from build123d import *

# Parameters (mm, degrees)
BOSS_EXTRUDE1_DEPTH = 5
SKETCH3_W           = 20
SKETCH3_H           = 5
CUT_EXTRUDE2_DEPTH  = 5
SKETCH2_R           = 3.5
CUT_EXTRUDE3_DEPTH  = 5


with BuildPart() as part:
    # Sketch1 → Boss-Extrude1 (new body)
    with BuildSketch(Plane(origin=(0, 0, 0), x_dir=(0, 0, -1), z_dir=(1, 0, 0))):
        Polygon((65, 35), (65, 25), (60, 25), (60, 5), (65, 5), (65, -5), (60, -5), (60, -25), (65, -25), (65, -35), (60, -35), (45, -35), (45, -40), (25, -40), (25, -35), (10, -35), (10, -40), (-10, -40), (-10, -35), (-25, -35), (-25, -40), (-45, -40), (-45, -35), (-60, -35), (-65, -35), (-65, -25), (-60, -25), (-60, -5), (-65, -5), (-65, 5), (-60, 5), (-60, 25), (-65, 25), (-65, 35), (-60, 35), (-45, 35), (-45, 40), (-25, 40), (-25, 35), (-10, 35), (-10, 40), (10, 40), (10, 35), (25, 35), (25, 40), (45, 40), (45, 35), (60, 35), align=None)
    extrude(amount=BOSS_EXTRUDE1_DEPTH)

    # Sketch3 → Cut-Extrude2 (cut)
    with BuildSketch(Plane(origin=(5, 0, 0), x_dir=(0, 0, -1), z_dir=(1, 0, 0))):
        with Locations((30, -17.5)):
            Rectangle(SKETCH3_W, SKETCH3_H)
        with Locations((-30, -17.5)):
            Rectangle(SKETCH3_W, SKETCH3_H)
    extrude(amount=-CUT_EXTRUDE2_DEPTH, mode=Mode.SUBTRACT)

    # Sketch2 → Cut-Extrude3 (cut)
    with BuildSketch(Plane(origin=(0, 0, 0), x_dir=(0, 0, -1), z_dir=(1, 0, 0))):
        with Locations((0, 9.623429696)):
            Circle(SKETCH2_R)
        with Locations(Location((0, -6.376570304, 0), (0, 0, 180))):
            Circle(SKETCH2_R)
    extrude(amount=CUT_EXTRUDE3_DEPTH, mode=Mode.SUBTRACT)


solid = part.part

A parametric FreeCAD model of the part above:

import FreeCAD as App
import Part
import Sketcher
from FreeCAD import Vector
Q = App.Units.Quantity

doc = App.newDocument("Part")
body = doc.addObject("PartDesign::Body", "Body")

# Sketch on YZ plane
sketch1 = body.newObject("Sketcher::SketchObject", "Sketch")
sketch1.AttachmentSupport = (doc.getObject("YZ_Plane"), [""])
sketch1.MapMode = "FlatFace"
sketch1.addGeometry([
    Part.LineSegment(Vector(25, -65, 0), Vector(35, -65, 0)),  # 0
    Part.LineSegment(Vector(35, -65, 0), Vector(35, -45, 0)),  # 1
    Part.LineSegment(Vector(35, -45, 0), Vector(40, -45, 0)),  # 2
    Part.LineSegment(Vector(40, -45, 0), Vector(40, -25, 0)),  # 3
    Part.LineSegment(Vector(40, -25, 0), Vector(35, -25, 0)),  # 4
    Part.LineSegment(Vector(35, -25, 0), Vector(35, -10, 0)),  # 5
    Part.LineSegment(Vector(35, -10, 0), Vector(40, -10, 0)),  # 6
    Part.LineSegment(Vector(40, -10, 0), Vector(40, 10, 0)),  # 7
    Part.LineSegment(Vector(40, 10, 0), Vector(35, 10, 0)),  # 8
    Part.LineSegment(Vector(35, 10, 0), Vector(35, 25, 0)),  # 9
    Part.LineSegment(Vector(35, 25, 0), Vector(40, 25, 0)),  # 10
    Part.LineSegment(Vector(40, 25, 0), Vector(40, 45, 0)),  # 11
    Part.LineSegment(Vector(40, 45, 0), Vector(35, 45, 0)),  # 12
    Part.LineSegment(Vector(35, 45, 0), Vector(35, 65, 0)),  # 13
    Part.LineSegment(Vector(35, 65, 0), Vector(25, 65, 0)),  # 14
    Part.LineSegment(Vector(25, 65, 0), Vector(25, 60, 0)),  # 15
    Part.LineSegment(Vector(25, 60, 0), Vector(5, 60, 0)),  # 16
    Part.LineSegment(Vector(5, 60, 0), Vector(5, 65, 0)),  # 17
    Part.LineSegment(Vector(5, 65, 0), Vector(-5, 65, 0)),  # 18
    Part.LineSegment(Vector(-5, 65, 0), Vector(-5, 60, 0)),  # 19
    Part.LineSegment(Vector(-5, 60, 0), Vector(-25, 60, 0)),  # 20
    Part.LineSegment(Vector(-25, 60, 0), Vector(-25, 65, 0)),  # 21
    Part.LineSegment(Vector(-25, 65, 0), Vector(-35, 65, 0)),  # 22
    Part.LineSegment(Vector(-35, 65, 0), Vector(-35, 45, 0)),  # 23
    Part.LineSegment(Vector(-35, 45, 0), Vector(-40, 45, 0)),  # 24
    Part.LineSegment(Vector(-40, 45, 0), Vector(-40, 25, 0)),  # 25
    Part.LineSegment(Vector(-40, 25, 0), Vector(-35, 25, 0)),  # 26
    Part.LineSegment(Vector(-35, 25, 0), Vector(-35, 10, 0)),  # 27
    Part.LineSegment(Vector(-35, 10, 0), Vector(-40, 10, 0)),  # 28
    Part.LineSegment(Vector(-40, 10, 0), Vector(-40, -10, 0)),  # 29
    Part.LineSegment(Vector(-40, -10, 0), Vector(-35, -10, 0)),  # 30
    Part.LineSegment(Vector(-35, -10, 0), Vector(-35, -25, 0)),  # 31
    Part.LineSegment(Vector(-35, -25, 0), Vector(-40, -25, 0)),  # 32
    Part.LineSegment(Vector(-40, -25, 0), Vector(-40, -45, 0)),  # 33
    Part.LineSegment(Vector(-40, -45, 0), Vector(-35, -45, 0)),  # 34
    Part.LineSegment(Vector(-35, -45, 0), Vector(-35, -65, 0)),  # 35
    Part.LineSegment(Vector(-35, -65, 0), Vector(-25, -65, 0)),  # 36
    Part.LineSegment(Vector(-25, -65, 0), Vector(-25, -60, 0)),  # 37
    Part.LineSegment(Vector(-25, -60, 0), Vector(-5, -60, 0)),  # 38
    Part.LineSegment(Vector(-5, -60, 0), Vector(-5, -65, 0)),  # 39
    Part.LineSegment(Vector(-5, -65, 0), Vector(5, -65, 0)),  # 40
    Part.LineSegment(Vector(5, -65, 0), Vector(5, -60, 0)),  # 41
    Part.LineSegment(Vector(5, -60, 0), Vector(25, -60, 0)),  # 42
    Part.LineSegment(Vector(25, -60, 0), Vector(25, -65, 0)),  # 43
], False)
sketch1.addConstraint([
    Sketcher.Constraint("Coincident", 0, 2, 1, 1),
    Sketcher.Constraint("Coincident", 1, 2, 2, 1),
    Sketcher.Constraint("Coincident", 2, 2, 3, 1),
    Sketcher.Constraint("Coincident", 3, 2, 4, 1),
    Sketcher.Constraint("Coincident", 4, 2, 5, 1),
    Sketcher.Constraint("Coincident", 5, 2, 6, 1),
    Sketcher.Constraint("Coincident", 6, 2, 7, 1),
    Sketcher.Constraint("Coincident", 7, 2, 8, 1),
    Sketcher.Constraint("Coincident", 8, 2, 9, 1),
    Sketcher.Constraint("Coincident", 9, 2, 10, 1),
    Sketcher.Constraint("Coincident", 10, 2, 11, 1),
    Sketcher.Constraint("Coincident", 11, 2, 12, 1),
    Sketcher.Constraint("Coincident", 12, 2, 13, 1),
    Sketcher.Constraint("Coincident", 13, 2, 14, 1),
    Sketcher.Constraint("Coincident", 14, 2, 15, 1),
    Sketcher.Constraint("Coincident", 15, 2, 16, 1),
    Sketcher.Constraint("Coincident", 16, 2, 17, 1),
    Sketcher.Constraint("Coincident", 17, 2, 18, 1),
    Sketcher.Constraint("Coincident", 18, 2, 19, 1),
    Sketcher.Constraint("Coincident", 19, 2, 20, 1),
    Sketcher.Constraint("Coincident", 20, 2, 21, 1),
    Sketcher.Constraint("Coincident", 21, 2, 22, 1),
    Sketcher.Constraint("Coincident", 22, 2, 23, 1),
    Sketcher.Constraint("Coincident", 23, 2, 24, 1),
    Sketcher.Constraint("Coincident", 24, 2, 25, 1),
    Sketcher.Constraint("Coincident", 25, 2, 26, 1),
    Sketcher.Constraint("Coincident", 26, 2, 27, 1),
    Sketcher.Constraint("Coincident", 27, 2, 28, 1),
    Sketcher.Constraint("Coincident", 28, 2, 29, 1),
    Sketcher.Constraint("Coincident", 29, 2, 30, 1),
    Sketcher.Constraint("Coincident", 30, 2, 31, 1),
    Sketcher.Constraint("Coincident", 31, 2, 32, 1),
    Sketcher.Constraint("Coincident", 32, 2, 33, 1),
    Sketcher.Constraint("Coincident", 33, 2, 34, 1),
    Sketcher.Constraint("Coincident", 34, 2, 35, 1),
    Sketcher.Constraint("Coincident", 35, 2, 36, 1),
    Sketcher.Constraint("Coincident", 36, 2, 37, 1),
    Sketcher.Constraint("Coincident", 37, 2, 38, 1),
    Sketcher.Constraint("Coincident", 38, 2, 39, 1),
    Sketcher.Constraint("Coincident", 39, 2, 40, 1),
    Sketcher.Constraint("Coincident", 40, 2, 41, 1),
    Sketcher.Constraint("Coincident", 41, 2, 42, 1),
    Sketcher.Constraint("Coincident", 42, 2, 43, 1),
    Sketcher.Constraint("Coincident", 43, 2, 0, 1),
    Sketcher.Constraint("Horizontal", 0),
    Sketcher.Constraint("Vertical", 1),
    Sketcher.Constraint("Horizontal", 2),
    Sketcher.Constraint("Vertical", 3),
    Sketcher.Constraint("Horizontal", 4),
    Sketcher.Constraint("Vertical", 5),
    Sketcher.Constraint("Horizontal", 6),
    Sketcher.Constraint("Vertical", 7),
    Sketcher.Constraint("Horizontal", 8),
    Sketcher.Constraint("Vertical", 9),
    Sketcher.Constraint("Horizontal", 10),
    Sketcher.Constraint("Vertical", 11),
    Sketcher.Constraint("Horizontal", 12),
    Sketcher.Constraint("Vertical", 13),
    Sketcher.Constraint("Horizontal", 14),
    Sketcher.Constraint("Vertical", 15),
    Sketcher.Constraint("Horizontal", 16),
    Sketcher.Constraint("Vertical", 17),
    Sketcher.Constraint("Horizontal", 18),
    Sketcher.Constraint("Vertical", 19),
    Sketcher.Constraint("Horizontal", 20),
    Sketcher.Constraint("Vertical", 21),
    Sketcher.Constraint("Horizontal", 22),
    Sketcher.Constraint("Vertical", 23),
    Sketcher.Constraint("Horizontal", 24),
    Sketcher.Constraint("Vertical", 25),
    Sketcher.Constraint("Horizontal", 26),
    Sketcher.Constraint("Vertical", 27),
    Sketcher.Constraint("Horizontal", 28),
    Sketcher.Constraint("Vertical", 29),
    Sketcher.Constraint("Horizontal", 30),
    Sketcher.Constraint("Vertical", 31),
    Sketcher.Constraint("Horizontal", 32),
    Sketcher.Constraint("Vertical", 33),
    Sketcher.Constraint("Horizontal", 34),
    Sketcher.Constraint("Vertical", 35),
    Sketcher.Constraint("Horizontal", 36),
    Sketcher.Constraint("Vertical", 37),
    Sketcher.Constraint("Horizontal", 38),
    Sketcher.Constraint("Vertical", 39),
    Sketcher.Constraint("Horizontal", 40),
    Sketcher.Constraint("Vertical", 41),
    Sketcher.Constraint("Horizontal", 42),
    Sketcher.Constraint("Vertical", 43),
    Sketcher.Constraint("Symmetric", 0, 2, 22, 2, -1, 1),
    Sketcher.Constraint("Symmetric", 2, 2, 24, 2, -1, 1),
    Sketcher.Constraint("Symmetric", 4, 2, 26, 2, -1, 1),
    Sketcher.Constraint("Symmetric", 6, 2, 28, 2, -1, 1),
    Sketcher.Constraint("Symmetric", 8, 2, 30, 2, -1, 1),
    Sketcher.Constraint("Symmetric", 10, 2, 32, 2, -1, 1),
    Sketcher.Constraint("Symmetric", 12, 2, 34, 2, -1, 1),
    Sketcher.Constraint("Symmetric", 14, 2, 36, 2, -1, 1),
    Sketcher.Constraint("Symmetric", 16, 2, 38, 2, -1, 1),
    Sketcher.Constraint("Symmetric", 18, 2, 40, 2, -1, 1),
    Sketcher.Constraint("Symmetric", 20, 2, 42, 2, -1, 1),
    Sketcher.Constraint("Symmetric", 16, 2, 19, 2, -2),
    Sketcher.Constraint("Symmetric", 14, 2, 21, 2, -2),
    Sketcher.Constraint("Symmetric", 12, 2, 23, 2, -2),
    Sketcher.Constraint("Symmetric", 10, 2, 25, 2, -2),
    Sketcher.Constraint("Symmetric", 8, 2, 27, 2, -2),
    Sketcher.Constraint("Horizontal", 14, 2, 17, 2),
    Sketcher.Constraint("Vertical", 1, 2, 4, 2),
    Sketcher.Constraint("Vertical", 3, 2, 6, 2),
    Sketcher.Constraint("Equal", 14, 18),
    Sketcher.Constraint("Equal", 42, 1),
    Sketcher.Constraint("Equal", 1, 3),
    Sketcher.Constraint("Equal", 3, 7),
    Sketcher.Constraint("Equal", 34, 15),
    Sketcher.Constraint("DistanceX", 0, 1, 0, 2, Q("10 mm")),
    Sketcher.Constraint("DistanceX", 2, 1, 2, 2, Q("5 mm")),
    Sketcher.Constraint("DistanceX", 16, 2, 16, 1, Q("20 mm")),
    Sketcher.Constraint("DistanceY", 5, 1, 5, 2, Q("15 mm")),
])
pad1 = body.newObject("PartDesign::Pad", "Pad")
pad1.Profile = sketch1
pad1.Length = 5

# Sketch on YZ plane
sketch2 = body.newObject("Sketcher::SketchObject", "Sketch001")
sketch2.AttachmentSupport = (doc.getObject("YZ_Plane"), [""])
sketch2.MapMode = "FlatFace"
sketch2.AttachmentOffset = App.Placement(Vector(0, 0, 5), App.Rotation())
sketch2.addGeometry([
    Part.LineSegment(Vector(-15, -20, 0), Vector(-20, -20, 0)),  # 0
    Part.LineSegment(Vector(-20, -20, 0), Vector(-20, -40, 0)),  # 1
    Part.LineSegment(Vector(-20, -40, 0), Vector(-15, -40, 0)),  # 2
    Part.LineSegment(Vector(-15, -40, 0), Vector(-15, -20, 0)),  # 3
    Part.LineSegment(Vector(-15, 40, 0), Vector(-20, 40, 0)),  # 4
    Part.LineSegment(Vector(-20, 40, 0), Vector(-20, 20, 0)),  # 5
    Part.LineSegment(Vector(-20, 20, 0), Vector(-15, 20, 0)),  # 6
    Part.LineSegment(Vector(-15, 20, 0), Vector(-15, 40, 0)),  # 7
], False)
sketch2.addConstraint([
    Sketcher.Constraint("Coincident", 0, 2, 1, 1),
    Sketcher.Constraint("Coincident", 1, 2, 2, 1),
    Sketcher.Constraint("Coincident", 2, 2, 3, 1),
    Sketcher.Constraint("Coincident", 3, 2, 0, 1),
    Sketcher.Constraint("Coincident", 4, 2, 5, 1),
    Sketcher.Constraint("Coincident", 5, 2, 6, 1),
    Sketcher.Constraint("Coincident", 6, 2, 7, 1),
    Sketcher.Constraint("Coincident", 7, 2, 4, 1),
    Sketcher.Constraint("Horizontal", 0),
    Sketcher.Constraint("Vertical", 1),
    Sketcher.Constraint("Horizontal", 2),
    Sketcher.Constraint("Vertical", 3),
    Sketcher.Constraint("Horizontal", 4),
    Sketcher.Constraint("Vertical", 5),
    Sketcher.Constraint("Horizontal", 6),
    Sketcher.Constraint("Vertical", 7),
    Sketcher.Constraint("Symmetric", 1, 2, 4, 2, -1),
    Sketcher.Constraint("Symmetric", 3, 2, 6, 2, -1),
    Sketcher.Constraint("DistanceX", 0, 2, 0, 1, Q("5 mm")),
    Sketcher.Constraint("DistanceY", 1, 2, 1, 1, Q("20 mm")),
    Sketcher.Constraint("DistanceX", 0, 2, -1, 1, Q("20 mm")),
    Sketcher.Constraint("DistanceY", 0, 2, -1, 1, Q("20 mm")),
])
pocket1 = body.newObject("PartDesign::Pocket", "Pocket")
pocket1.Profile = sketch2
pocket1.Length = 5

# Sketch on YZ plane
sketch3 = body.newObject("Sketcher::SketchObject", "Sketch002")
sketch3.AttachmentSupport = (doc.getObject("YZ_Plane"), [""])
sketch3.MapMode = "FlatFace"
sketch3.addGeometry([
    Part.Circle(Vector(9.62343, 0, 0), Vector(0, 0, 1), 3.5),
    Part.Circle(Vector(-6.37657, 0, 0), Vector(0, 0, 1), 3.5),
], False)
sketch3.addConstraint([
    Sketcher.Constraint("Equal", 0, 1),
    Sketcher.Constraint("PointOnObject", 0, 3, -1),
    Sketcher.Constraint("PointOnObject", 1, 3, -1),
    Sketcher.Constraint("Diameter", 0, Q("7 mm")),
    Sketcher.Constraint("DistanceX", 1, 3, 0, 3, Q("16 mm")),
    Sketcher.Constraint("DistanceX", -1, 1, 0, 3, Q("9.62343 mm")),
])
pocket2 = body.newObject("PartDesign::Pocket", "Pocket001")
pocket2.Profile = sketch3
pocket2.Length = 5
pocket2.Reversed = True

doc.recompute()
